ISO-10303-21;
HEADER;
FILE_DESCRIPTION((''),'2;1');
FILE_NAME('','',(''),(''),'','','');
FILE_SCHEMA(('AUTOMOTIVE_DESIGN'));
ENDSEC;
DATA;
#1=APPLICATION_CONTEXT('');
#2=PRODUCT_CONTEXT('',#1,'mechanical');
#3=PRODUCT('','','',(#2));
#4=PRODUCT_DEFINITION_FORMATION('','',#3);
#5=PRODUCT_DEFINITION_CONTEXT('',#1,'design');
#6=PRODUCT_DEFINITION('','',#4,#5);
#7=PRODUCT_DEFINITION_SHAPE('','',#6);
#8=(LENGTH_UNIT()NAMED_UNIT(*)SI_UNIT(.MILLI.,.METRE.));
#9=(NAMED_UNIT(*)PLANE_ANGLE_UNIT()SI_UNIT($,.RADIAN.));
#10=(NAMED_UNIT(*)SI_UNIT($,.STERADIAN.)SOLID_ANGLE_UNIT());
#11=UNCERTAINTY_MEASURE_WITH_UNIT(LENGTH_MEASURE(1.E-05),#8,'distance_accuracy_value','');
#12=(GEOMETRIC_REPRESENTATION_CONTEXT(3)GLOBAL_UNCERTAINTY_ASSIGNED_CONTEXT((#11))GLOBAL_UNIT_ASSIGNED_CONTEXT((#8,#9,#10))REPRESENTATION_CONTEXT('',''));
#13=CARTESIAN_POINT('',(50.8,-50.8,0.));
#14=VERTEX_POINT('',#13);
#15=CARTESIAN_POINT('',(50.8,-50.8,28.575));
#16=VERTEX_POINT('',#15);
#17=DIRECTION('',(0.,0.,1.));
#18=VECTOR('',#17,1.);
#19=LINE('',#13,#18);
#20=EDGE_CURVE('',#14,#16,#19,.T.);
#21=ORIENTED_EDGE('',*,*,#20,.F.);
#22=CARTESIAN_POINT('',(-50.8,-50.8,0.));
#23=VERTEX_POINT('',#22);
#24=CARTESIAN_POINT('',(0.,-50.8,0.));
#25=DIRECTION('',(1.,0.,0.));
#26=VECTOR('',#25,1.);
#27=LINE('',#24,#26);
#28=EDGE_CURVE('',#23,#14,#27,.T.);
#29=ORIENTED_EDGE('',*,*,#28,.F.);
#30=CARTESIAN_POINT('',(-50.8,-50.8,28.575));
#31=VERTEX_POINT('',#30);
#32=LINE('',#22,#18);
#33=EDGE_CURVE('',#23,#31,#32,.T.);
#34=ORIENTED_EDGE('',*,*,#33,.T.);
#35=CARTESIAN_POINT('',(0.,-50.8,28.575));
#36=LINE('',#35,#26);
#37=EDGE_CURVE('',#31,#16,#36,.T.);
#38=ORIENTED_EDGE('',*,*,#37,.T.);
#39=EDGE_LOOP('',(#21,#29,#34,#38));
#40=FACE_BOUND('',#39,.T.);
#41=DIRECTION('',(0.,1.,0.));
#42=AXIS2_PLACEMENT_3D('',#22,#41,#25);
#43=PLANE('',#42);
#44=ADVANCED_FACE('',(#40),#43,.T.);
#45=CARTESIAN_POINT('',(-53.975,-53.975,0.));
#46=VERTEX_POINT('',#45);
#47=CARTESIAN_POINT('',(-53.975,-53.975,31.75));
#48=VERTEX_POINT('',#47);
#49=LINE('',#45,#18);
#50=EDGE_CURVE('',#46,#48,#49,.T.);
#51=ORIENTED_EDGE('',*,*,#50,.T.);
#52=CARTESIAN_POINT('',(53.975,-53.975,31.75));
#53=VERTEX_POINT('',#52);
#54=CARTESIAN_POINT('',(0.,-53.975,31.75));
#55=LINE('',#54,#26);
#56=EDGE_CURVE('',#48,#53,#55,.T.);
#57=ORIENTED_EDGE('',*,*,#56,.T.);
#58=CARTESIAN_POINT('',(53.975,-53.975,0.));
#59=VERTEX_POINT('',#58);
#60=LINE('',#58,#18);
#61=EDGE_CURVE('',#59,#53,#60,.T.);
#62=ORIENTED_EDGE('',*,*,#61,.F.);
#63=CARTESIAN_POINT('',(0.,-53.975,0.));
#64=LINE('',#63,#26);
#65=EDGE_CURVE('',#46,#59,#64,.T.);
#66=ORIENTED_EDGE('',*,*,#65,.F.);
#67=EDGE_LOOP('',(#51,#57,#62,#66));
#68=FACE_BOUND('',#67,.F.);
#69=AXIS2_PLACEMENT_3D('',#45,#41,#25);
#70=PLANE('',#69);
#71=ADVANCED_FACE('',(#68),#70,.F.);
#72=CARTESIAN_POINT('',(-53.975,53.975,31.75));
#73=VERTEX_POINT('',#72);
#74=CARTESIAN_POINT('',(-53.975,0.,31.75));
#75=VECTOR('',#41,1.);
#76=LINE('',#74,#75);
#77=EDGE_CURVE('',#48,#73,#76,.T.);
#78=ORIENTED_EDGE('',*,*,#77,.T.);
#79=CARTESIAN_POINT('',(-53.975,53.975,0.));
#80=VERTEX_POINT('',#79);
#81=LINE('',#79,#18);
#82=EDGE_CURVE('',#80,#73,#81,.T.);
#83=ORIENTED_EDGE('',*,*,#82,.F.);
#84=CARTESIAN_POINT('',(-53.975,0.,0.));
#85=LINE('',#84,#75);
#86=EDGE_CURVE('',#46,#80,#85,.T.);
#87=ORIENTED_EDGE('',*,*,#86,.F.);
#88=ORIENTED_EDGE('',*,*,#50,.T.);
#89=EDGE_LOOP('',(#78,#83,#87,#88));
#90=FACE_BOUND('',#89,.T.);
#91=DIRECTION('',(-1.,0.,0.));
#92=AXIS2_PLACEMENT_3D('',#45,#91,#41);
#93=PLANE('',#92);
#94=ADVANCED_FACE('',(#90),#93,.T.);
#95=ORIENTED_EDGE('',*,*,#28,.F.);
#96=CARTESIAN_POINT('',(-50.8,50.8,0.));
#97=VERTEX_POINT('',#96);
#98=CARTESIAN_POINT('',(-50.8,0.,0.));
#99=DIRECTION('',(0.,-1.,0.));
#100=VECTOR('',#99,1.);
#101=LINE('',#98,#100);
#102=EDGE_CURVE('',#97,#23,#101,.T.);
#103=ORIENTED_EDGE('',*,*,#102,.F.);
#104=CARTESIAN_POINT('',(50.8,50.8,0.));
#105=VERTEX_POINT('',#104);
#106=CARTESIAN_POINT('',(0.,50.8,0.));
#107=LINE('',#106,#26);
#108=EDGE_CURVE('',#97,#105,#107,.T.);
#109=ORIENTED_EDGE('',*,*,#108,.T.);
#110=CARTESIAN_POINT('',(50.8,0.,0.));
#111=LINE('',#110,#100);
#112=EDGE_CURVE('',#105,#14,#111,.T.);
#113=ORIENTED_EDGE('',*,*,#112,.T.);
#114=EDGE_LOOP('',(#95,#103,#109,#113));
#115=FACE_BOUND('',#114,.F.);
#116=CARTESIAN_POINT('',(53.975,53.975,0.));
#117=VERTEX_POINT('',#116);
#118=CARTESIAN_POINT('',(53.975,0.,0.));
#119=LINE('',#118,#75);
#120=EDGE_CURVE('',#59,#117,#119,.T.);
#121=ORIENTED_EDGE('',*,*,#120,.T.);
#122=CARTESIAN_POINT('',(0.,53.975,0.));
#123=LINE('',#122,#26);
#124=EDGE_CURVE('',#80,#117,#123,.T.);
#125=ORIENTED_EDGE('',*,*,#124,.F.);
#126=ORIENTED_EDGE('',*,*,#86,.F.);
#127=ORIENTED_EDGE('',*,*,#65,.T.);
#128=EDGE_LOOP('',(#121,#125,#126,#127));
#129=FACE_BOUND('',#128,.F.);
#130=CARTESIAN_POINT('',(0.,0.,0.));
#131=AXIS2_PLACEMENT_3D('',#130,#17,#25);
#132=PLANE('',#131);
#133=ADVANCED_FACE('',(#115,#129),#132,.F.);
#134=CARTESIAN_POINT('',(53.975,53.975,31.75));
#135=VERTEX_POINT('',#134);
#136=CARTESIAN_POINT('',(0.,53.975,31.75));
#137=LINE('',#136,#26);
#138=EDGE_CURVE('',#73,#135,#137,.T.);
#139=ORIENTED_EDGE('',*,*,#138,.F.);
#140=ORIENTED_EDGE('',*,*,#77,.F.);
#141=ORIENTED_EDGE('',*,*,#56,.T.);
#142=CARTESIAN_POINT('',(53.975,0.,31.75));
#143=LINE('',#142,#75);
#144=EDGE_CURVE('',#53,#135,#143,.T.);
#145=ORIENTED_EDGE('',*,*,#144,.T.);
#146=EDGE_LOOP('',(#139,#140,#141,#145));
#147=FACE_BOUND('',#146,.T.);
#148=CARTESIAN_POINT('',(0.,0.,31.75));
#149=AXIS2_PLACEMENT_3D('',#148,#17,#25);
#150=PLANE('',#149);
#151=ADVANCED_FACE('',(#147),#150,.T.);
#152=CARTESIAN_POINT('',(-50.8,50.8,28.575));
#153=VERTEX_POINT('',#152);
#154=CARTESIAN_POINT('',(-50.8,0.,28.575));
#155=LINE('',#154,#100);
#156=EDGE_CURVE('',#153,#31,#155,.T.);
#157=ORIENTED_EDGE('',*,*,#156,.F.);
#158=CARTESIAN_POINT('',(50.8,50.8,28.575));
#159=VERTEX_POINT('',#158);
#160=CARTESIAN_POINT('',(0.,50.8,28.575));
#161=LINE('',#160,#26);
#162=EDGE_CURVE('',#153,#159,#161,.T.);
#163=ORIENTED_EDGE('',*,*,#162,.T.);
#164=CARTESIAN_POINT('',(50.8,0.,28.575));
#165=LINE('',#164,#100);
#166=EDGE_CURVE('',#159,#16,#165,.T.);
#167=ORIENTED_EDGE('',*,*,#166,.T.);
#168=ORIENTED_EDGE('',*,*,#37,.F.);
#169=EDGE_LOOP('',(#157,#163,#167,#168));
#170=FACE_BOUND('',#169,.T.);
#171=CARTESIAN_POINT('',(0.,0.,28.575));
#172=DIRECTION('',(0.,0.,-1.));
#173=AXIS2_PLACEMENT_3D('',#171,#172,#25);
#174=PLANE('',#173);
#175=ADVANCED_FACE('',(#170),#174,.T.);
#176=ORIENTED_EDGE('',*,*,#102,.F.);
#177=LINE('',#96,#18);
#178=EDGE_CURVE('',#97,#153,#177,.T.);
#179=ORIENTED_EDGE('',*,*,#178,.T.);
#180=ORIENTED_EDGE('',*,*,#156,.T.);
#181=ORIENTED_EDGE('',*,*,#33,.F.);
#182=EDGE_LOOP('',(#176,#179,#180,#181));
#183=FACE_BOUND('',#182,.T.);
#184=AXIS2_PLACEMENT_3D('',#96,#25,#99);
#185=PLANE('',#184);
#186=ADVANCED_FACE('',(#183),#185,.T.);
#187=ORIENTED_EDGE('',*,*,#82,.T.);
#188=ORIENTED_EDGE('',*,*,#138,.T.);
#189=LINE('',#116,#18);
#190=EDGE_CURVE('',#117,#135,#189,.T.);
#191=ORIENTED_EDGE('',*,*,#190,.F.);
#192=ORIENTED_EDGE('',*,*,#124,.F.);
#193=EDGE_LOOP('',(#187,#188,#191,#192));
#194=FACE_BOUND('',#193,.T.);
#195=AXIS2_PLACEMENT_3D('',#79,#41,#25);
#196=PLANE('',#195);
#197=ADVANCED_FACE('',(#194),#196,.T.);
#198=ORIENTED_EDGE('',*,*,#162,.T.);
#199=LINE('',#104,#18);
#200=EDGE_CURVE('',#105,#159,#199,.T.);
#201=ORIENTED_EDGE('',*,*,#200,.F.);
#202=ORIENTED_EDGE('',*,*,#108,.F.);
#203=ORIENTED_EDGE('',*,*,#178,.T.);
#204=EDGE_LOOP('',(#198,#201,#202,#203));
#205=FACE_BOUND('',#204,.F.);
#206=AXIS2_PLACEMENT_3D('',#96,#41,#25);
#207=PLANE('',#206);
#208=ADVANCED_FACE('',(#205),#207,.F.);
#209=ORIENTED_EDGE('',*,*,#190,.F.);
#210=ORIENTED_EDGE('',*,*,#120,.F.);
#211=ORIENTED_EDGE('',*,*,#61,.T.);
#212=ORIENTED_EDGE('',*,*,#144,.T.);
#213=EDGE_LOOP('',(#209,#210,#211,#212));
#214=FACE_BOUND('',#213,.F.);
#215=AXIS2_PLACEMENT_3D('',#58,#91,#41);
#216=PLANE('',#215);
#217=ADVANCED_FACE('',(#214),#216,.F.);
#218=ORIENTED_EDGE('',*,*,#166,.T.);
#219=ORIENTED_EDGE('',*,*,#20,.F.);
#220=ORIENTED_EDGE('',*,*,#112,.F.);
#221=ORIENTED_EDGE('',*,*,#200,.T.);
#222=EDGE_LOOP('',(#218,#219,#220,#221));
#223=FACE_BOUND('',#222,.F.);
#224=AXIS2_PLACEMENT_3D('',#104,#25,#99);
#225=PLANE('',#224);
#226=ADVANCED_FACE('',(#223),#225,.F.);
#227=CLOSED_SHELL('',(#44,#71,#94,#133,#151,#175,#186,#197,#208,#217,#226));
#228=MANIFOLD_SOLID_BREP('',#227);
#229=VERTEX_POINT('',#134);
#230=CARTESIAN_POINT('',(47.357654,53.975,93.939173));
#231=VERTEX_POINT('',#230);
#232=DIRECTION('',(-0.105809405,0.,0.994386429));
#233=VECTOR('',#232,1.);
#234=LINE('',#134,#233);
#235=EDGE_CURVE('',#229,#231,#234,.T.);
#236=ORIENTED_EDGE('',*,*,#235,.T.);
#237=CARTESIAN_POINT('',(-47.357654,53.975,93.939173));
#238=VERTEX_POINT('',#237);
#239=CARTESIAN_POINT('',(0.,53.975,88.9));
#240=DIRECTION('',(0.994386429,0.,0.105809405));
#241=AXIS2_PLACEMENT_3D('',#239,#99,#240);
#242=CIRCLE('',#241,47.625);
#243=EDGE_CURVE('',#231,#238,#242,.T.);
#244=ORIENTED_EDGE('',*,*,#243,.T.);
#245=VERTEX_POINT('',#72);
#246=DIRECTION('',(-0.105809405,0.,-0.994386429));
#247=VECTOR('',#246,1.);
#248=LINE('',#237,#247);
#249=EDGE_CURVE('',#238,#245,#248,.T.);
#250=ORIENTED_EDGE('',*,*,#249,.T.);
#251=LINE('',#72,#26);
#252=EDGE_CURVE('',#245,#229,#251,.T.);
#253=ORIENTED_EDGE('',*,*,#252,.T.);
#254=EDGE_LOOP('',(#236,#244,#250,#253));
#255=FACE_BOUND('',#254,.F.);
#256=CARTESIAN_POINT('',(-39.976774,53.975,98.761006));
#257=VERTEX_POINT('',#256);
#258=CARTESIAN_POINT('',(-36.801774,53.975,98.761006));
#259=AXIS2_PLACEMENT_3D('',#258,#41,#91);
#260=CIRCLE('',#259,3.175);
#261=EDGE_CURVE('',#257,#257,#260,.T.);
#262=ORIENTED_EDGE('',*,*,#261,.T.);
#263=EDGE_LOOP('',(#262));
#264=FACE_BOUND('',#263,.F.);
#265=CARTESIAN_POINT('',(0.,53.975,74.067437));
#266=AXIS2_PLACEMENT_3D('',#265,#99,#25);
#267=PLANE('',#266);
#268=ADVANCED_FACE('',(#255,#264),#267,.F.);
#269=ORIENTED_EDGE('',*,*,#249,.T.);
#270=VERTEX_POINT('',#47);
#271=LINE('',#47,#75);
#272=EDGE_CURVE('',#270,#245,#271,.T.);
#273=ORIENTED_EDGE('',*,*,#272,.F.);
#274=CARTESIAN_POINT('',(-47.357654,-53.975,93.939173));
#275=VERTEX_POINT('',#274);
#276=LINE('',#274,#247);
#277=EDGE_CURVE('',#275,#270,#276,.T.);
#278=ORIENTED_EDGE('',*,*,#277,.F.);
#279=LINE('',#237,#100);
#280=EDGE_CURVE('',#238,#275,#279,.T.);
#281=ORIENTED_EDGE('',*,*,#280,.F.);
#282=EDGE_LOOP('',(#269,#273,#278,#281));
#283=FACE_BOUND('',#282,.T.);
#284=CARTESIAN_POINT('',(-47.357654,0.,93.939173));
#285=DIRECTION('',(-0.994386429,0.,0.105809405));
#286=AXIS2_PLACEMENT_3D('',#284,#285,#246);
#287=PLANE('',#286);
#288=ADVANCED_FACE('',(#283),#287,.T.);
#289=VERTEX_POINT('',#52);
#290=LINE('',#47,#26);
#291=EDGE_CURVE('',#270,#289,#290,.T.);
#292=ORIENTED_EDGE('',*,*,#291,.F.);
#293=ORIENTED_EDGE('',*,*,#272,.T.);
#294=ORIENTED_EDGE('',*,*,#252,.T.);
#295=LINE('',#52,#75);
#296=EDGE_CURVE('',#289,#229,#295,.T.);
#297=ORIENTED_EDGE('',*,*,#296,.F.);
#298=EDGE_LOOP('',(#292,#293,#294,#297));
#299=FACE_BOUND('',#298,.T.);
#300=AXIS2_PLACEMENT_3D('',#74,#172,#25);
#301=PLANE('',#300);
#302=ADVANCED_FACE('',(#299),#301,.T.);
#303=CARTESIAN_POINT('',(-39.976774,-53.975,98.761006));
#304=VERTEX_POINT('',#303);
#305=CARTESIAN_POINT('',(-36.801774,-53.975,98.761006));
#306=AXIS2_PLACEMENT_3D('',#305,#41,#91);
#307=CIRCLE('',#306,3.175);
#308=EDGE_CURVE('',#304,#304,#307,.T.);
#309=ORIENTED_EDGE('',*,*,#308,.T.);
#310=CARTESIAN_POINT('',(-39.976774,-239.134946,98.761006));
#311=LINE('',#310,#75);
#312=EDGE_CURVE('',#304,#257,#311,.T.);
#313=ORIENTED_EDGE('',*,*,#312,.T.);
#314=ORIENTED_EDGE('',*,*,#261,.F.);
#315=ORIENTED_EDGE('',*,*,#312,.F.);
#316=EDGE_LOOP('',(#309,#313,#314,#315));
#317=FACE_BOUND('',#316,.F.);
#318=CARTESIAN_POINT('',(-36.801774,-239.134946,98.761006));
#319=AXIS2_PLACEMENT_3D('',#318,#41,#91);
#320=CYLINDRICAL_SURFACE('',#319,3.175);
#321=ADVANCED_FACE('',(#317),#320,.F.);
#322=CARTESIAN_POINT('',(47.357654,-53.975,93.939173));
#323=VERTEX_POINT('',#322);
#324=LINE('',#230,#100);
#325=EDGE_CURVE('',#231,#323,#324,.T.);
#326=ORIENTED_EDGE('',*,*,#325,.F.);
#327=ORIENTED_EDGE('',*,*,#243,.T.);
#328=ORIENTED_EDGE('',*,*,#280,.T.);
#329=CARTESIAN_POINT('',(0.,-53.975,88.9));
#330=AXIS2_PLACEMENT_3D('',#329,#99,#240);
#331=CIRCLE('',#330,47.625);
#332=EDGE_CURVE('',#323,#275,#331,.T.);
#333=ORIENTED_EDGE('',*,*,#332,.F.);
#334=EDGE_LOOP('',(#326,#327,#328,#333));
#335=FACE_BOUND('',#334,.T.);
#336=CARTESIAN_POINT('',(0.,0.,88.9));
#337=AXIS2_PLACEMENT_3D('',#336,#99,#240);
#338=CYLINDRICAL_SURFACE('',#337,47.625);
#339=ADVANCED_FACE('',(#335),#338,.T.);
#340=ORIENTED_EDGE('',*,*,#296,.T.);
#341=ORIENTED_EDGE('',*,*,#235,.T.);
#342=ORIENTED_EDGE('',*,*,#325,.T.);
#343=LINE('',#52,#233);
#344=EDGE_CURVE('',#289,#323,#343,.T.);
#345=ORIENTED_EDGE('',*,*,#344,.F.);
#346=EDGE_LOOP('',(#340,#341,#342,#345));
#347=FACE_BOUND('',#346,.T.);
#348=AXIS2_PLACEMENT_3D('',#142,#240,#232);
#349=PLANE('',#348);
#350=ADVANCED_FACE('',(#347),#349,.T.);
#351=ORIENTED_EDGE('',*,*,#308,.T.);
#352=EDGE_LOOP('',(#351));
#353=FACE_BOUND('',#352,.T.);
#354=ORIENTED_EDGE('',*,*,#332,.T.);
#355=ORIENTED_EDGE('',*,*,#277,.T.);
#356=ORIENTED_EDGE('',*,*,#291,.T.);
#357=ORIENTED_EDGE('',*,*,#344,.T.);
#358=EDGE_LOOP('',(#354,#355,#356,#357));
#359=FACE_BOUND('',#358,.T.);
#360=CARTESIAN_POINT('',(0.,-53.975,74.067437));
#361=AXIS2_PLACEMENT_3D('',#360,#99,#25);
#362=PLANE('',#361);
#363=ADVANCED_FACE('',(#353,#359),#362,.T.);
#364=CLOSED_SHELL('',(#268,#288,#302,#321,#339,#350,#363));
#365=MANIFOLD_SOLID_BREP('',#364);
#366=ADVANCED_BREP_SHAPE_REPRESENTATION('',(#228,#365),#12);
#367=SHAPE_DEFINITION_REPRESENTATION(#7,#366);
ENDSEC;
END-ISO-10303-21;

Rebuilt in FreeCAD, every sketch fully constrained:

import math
import FreeCAD as App
import Part
import Sketcher
Q = App.Units.Quantity


def add_polygon(sketch, points):
    """Adds a closed chain of lines whose ends are joined by coincident constraints."""
    first, n = sketch.GeometryCount, len(points)
    for a, b in zip(points, points[1:] + points[:1]):
        sketch.addGeometry(Part.LineSegment(App.Vector(*a, 0), App.Vector(*b, 0)), False)
    for i in range(n):
        sketch.addConstraint(Sketcher.Constraint("Coincident", first + i, 2, first + (i + 1) % n, 1))

doc = App.newDocument("Part")
body = doc.addObject("PartDesign::Body", "Body")

sketch1 = body.newObject("Sketcher::SketchObject", "Sketch")
sketch1.AttachmentSupport = (doc.getObject("XY_Plane"), [""])
sketch1.MapMode = "FlatFace"
add_polygon(sketch1, [(-54, 54), (-54, -54), (54, -54), (54, 54)])
sketch1.addConstraint([
    Sketcher.Constraint("Vertical", 0),
    Sketcher.Constraint("Horizontal", 1),
    Sketcher.Constraint("Vertical", 2),
    Sketcher.Constraint("Horizontal", 3),
    Sketcher.Constraint("Symmetric", 0, 2, 2, 2, -1, 1),
    Sketcher.Constraint("Equal", 3, 0),
    Sketcher.Constraint("DistanceX", 1, 1, 1, 2, Q("4.25 in")),
])
pad1 = body.newObject("PartDesign::Pad", "Pad")
pad1.Profile = sketch1
pad1.Length = Q("1.25 in")

sketch2 = body.newObject("Sketcher::SketchObject", "Sketch001")
sketch2.AttachmentSupport = (doc.getObject("XY_Plane"), [""])
sketch2.MapMode = "FlatFace"
add_polygon(sketch2, [(-51, -51), (-51, 51), (51, 51), (51, -51)])
sketch2.addConstraint([
    Sketcher.Constraint("Vertical", 0),
    Sketcher.Constraint("Horizontal", 1),
    Sketcher.Constraint("Vertical", 2),
    Sketcher.Constraint("Horizontal", 3),
    Sketcher.Constraint("Symmetric", 0, 2, 2, 2, -1, 1),
    Sketcher.Constraint("Equal", 3, 0),
    Sketcher.Constraint("DistanceX", 1, 1, 1, 2, Q("4 in")),
])
pocket1 = body.newObject("PartDesign::Pocket", "Pocket")
pocket1.Profile = sketch2
pocket1.Length = Q("1.125 in")
pocket1.Reversed = True
body2 = doc.addObject("PartDesign::Body", "Body001")

sketch3 = body2.newObject("Sketcher::SketchObject", "Sketch002")
sketch3.AttachmentSupport = (doc.getObject("XZ_Plane001"), [""])
sketch3.MapMode = "FlatFace"
sketch3.addGeometry([
    Part.LineSegment(App.Vector(54, 32, 0), App.Vector(47, 94, 0)),
    Part.ArcOfCircle(Part.Circle(App.Vector(0, 89, 0), App.Vector(0, 0, 1), 48), math.radians(6), math.radians(174)),
    Part.LineSegment(App.Vector(-47, 94, 0), App.Vector(-54, 32, 0)),
    Part.LineSegment(App.Vector(-54, 32, 0), App.Vector(54, 32, 0)),
], False)
sketch3.addConstraint([
    Sketcher.Constraint("Tangent", 0, 2, 1, 1),
    Sketcher.Constraint("Tangent", 1, 2, 2, 1),
    Sketcher.Constraint("Coincident", 2, 2, 3, 1),
    Sketcher.Constraint("Coincident", 3, 2, 0, 1),
    Sketcher.Constraint("Horizontal", 3),
    Sketcher.Constraint("Symmetric", 0, 2, 1, 2, -2),
    Sketcher.Constraint("Radius", 1, Q("1.875 in")),
    Sketcher.Constraint("DistanceX", 3, 1, 3, 2, Q("4.25 in")),
    Sketcher.Constraint("DistanceY", -1, 1, 1, 3, Q("3.5 in")),
    Sketcher.Constraint("DistanceY", -1, 1, 2, 2, Q("1.25 in")),
])
pad2 = body2.newObject("PartDesign::Pad", "Pad001")
pad2.Profile = sketch3
pad2.Length = Q("4.25 in")
pad2.Midplane = True

sketch4 = body2.newObject("Sketcher::SketchObject", "Sketch003")
sketch4.AttachmentSupport = (doc.getObject("XZ_Plane001"), [""])
sketch4.MapMode = "FlatFace"
sketch4.AttachmentOffset = App.Placement(App.Vector(0, 0, 2.125 * 25.4), App.Rotation())
sketch4.addGeometry(Part.Circle(App.Vector(-36.8, 98.8, 0), App.Vector(0, 0, 1), 3.2), False)
sketch4.addConstraint([
    Sketcher.Constraint("Diameter", 0, Q("0.25 in")),
    Sketcher.Constraint("DistanceX", 0, 3, -1, 1, 36.801774),
    Sketcher.Constraint("DistanceY", -1, 1, 0, 3, 98.761006),
])
doc.recompute()
hole = body2.newObject("PartDesign::Hole", "Hole")
hole.Profile = sketch4
hole.ThreadType = "None"
hole.Diameter = Q("0.25 in")
hole.DepthType = "ThroughAll"

doc.recompute()
